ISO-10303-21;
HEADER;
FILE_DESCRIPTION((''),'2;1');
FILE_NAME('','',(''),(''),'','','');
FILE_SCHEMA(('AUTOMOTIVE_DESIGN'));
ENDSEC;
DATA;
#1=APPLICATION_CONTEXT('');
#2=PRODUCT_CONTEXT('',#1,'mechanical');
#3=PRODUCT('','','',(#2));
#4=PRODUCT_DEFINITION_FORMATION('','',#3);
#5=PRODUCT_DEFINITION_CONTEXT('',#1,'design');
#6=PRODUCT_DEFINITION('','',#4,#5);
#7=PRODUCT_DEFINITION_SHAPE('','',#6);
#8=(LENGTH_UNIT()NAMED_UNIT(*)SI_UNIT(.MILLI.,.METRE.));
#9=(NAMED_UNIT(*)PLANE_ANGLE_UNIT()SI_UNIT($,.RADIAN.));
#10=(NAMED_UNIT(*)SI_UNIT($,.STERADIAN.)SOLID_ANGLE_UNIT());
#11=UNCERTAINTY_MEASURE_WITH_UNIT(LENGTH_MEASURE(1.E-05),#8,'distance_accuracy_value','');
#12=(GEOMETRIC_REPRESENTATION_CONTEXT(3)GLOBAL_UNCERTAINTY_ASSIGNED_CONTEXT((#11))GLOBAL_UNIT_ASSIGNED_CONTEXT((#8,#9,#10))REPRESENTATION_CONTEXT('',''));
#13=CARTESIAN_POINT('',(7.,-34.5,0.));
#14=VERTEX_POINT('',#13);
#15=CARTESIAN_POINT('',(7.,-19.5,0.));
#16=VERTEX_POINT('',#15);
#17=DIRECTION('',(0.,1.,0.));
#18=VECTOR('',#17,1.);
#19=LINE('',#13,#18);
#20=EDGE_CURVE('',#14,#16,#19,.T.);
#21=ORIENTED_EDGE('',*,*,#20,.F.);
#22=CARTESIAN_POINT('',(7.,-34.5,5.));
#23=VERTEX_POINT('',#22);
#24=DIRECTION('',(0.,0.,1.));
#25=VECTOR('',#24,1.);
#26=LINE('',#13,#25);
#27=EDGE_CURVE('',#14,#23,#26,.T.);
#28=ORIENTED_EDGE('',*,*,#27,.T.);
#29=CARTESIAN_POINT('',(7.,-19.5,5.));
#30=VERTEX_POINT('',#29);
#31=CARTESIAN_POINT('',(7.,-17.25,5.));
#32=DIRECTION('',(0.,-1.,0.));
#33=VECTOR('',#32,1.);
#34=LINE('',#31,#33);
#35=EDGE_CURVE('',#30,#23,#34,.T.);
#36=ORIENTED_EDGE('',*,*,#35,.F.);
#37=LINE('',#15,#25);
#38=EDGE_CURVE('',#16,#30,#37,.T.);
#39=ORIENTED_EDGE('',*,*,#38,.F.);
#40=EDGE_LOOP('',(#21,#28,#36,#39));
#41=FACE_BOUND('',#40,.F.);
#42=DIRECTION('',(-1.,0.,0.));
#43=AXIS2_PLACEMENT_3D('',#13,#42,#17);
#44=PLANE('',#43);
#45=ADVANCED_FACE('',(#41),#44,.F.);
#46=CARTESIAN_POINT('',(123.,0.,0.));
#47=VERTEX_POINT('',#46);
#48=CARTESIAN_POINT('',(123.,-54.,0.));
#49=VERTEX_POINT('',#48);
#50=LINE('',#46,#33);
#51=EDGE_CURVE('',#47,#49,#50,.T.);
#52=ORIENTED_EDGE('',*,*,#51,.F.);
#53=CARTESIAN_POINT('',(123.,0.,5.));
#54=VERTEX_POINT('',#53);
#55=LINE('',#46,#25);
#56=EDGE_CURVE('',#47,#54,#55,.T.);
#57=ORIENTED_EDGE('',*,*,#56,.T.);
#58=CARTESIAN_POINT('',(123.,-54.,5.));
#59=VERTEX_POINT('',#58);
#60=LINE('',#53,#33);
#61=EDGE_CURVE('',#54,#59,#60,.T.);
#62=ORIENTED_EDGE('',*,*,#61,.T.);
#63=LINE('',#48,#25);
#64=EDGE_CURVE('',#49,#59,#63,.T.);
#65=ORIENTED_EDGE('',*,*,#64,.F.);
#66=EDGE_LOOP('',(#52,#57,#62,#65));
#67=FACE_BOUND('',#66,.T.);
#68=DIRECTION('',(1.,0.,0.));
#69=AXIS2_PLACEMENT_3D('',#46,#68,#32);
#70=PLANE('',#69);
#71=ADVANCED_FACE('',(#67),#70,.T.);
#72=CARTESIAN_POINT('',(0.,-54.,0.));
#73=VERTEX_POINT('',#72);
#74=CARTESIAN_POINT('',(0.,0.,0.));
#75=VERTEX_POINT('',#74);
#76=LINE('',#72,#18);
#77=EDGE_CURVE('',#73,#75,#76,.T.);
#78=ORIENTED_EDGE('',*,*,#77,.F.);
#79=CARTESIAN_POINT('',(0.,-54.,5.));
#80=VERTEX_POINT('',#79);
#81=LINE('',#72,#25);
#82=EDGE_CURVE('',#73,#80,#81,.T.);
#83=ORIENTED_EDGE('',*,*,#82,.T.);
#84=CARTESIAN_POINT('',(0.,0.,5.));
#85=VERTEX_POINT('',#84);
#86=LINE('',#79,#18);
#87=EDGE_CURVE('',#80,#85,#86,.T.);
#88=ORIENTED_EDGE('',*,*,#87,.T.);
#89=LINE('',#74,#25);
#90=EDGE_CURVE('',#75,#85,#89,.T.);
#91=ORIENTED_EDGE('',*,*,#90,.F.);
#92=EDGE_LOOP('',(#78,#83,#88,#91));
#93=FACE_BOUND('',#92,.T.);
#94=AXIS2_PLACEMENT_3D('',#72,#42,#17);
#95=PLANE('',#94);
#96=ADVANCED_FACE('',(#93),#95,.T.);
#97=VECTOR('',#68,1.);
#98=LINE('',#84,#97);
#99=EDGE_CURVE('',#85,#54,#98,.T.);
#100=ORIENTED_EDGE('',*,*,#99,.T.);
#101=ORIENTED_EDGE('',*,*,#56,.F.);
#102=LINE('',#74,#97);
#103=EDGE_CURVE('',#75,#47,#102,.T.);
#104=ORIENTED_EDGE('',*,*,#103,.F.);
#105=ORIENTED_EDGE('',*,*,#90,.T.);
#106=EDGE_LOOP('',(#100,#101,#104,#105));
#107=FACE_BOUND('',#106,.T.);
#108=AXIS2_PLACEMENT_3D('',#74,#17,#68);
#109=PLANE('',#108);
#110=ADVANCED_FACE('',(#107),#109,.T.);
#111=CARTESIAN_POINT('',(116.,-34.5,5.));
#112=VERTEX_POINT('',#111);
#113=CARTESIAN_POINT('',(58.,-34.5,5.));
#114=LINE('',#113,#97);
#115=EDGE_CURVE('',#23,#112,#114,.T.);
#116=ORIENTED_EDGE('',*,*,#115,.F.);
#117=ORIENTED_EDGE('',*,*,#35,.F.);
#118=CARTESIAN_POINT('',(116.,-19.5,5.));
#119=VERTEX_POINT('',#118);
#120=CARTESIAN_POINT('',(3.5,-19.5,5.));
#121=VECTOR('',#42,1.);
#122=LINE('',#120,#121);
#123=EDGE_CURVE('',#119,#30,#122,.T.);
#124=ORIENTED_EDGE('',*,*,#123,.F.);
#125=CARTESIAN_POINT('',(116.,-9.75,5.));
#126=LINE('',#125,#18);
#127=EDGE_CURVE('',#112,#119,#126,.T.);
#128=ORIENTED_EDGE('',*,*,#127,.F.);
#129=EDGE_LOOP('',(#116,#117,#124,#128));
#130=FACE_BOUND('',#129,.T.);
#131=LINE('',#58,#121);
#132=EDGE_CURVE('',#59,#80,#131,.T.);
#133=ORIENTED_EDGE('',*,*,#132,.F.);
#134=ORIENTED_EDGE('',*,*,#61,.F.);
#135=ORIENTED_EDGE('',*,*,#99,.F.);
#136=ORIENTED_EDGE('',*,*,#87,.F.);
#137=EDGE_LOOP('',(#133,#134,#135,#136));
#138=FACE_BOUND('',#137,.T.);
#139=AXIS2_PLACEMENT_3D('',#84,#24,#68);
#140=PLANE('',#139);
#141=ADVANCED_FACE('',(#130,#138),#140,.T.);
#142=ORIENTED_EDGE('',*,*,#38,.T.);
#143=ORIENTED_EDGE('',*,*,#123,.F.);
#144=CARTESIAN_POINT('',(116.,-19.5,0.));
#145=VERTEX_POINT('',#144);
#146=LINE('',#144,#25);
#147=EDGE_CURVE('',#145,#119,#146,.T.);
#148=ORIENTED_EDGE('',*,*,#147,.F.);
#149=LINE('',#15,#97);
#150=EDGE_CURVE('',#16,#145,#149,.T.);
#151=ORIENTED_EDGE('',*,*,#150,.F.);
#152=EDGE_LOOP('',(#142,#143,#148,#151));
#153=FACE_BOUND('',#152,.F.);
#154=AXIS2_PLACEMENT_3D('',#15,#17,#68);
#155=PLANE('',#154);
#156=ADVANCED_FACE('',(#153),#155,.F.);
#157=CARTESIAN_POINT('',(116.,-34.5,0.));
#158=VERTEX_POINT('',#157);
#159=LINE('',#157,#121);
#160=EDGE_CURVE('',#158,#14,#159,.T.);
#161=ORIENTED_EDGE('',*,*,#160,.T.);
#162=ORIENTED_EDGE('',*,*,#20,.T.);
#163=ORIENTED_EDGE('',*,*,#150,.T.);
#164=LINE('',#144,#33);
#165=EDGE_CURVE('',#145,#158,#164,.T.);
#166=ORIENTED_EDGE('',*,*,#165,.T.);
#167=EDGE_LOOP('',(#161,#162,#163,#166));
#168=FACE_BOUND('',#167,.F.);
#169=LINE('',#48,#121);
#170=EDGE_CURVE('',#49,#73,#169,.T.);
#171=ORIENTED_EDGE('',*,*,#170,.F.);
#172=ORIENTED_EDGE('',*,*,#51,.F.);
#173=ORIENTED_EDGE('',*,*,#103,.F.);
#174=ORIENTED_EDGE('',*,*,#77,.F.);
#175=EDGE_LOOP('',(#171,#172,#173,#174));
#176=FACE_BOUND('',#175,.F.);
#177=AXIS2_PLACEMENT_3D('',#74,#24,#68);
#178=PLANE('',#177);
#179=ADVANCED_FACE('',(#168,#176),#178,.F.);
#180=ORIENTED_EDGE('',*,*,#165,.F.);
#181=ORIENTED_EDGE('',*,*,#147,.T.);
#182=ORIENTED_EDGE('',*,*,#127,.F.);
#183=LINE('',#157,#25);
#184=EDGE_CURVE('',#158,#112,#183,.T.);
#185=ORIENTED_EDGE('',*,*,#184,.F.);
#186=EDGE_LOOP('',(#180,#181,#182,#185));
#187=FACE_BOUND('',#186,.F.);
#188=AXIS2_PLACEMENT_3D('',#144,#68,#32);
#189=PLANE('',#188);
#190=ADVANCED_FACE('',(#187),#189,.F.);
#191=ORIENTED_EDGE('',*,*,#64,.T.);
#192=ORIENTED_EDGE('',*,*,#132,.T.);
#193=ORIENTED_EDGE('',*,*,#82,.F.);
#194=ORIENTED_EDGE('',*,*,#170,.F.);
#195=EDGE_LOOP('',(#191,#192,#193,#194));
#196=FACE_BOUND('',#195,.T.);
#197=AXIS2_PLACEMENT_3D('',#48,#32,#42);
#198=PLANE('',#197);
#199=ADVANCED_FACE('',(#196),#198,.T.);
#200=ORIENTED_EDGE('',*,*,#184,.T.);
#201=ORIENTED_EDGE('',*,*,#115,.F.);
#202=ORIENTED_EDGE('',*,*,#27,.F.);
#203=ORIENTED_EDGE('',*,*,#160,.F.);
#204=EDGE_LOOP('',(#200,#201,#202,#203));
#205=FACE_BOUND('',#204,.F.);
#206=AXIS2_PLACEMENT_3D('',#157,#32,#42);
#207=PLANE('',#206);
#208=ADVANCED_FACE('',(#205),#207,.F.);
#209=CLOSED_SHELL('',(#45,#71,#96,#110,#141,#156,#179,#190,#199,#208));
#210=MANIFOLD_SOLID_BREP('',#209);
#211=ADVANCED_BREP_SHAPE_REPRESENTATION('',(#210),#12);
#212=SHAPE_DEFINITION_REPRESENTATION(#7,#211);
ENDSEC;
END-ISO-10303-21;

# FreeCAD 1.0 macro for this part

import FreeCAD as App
import Part
import Sketcher

V = App.Vector
Q = App.Units.Quantity

doc = App.newDocument("Part")
body = doc.addObject("PartDesign::Body", "Body")

sketch1 = body.newObject("Sketcher::SketchObject", "Sketch")
sketch1.AttachmentSupport = (doc.getObject("XY_Plane"), [""])
sketch1.MapMode = "FlatFace"
sketch1.addGeometry([
    Part.LineSegment(V(123, 0, 0), V(0, 0, 0)),
    Part.LineSegment(V(0, 0, 0), V(0, -54, 0)),
    Part.LineSegment(V(0, -54, 0), V(123, -54, 0)),
    Part.LineSegment(V(123, -54, 0), V(123, 0, 0)),
], False)
sketch1.addConstraint([
    Sketcher.Constraint("Coincident", 0, 2, 1, 1),
    Sketcher.Constraint("Coincident", 1, 2, 2, 1),
    Sketcher.Constraint("Coincident", 2, 2, 3, 1),
    Sketcher.Constraint("Coincident", 3, 2, 0, 1),
    Sketcher.Constraint("Horizontal", 0),
    Sketcher.Constraint("Vertical", 1),
    Sketcher.Constraint("Horizontal", 2),
    Sketcher.Constraint("Vertical", 3),
    Sketcher.Constraint("Coincident", 0, 2, -1, 1),
    Sketcher.Constraint("DistanceX", 0, 2, 0, 1, Q("123 mm")),
    Sketcher.Constraint("DistanceY", 1, 2, 1, 1, Q("54 mm")),
])
pad1 = body.newObject("PartDesign::Pad", "Pad")
pad1.Profile = sketch1
pad1.Length = 5

sketch2 = body.newObject("Sketcher::SketchObject", "Sketch001")
sketch2.AttachmentSupport = (doc.getObject("XY_Plane"), [""])
sketch2.MapMode = "FlatFace"
sketch2.addGeometry([
    Part.LineSegment(V(116, -20, 0), V(7, -20, 0)),
    Part.LineSegment(V(7, -20, 0), V(7, -34, 0)),
    Part.LineSegment(V(7, -34, 0), V(116, -34, 0)),
    Part.LineSegment(V(116, -34, 0), V(116, -20, 0)),
], False)
sketch2.addConstraint([
    Sketcher.Constraint("Coincident", 0, 2, 1, 1),
    Sketcher.Constraint("Coincident", 1, 2, 2, 1),
    Sketcher.Constraint("Coincident", 2, 2, 3, 1),
    Sketcher.Constraint("Coincident", 3, 2, 0, 1),
    Sketcher.Constraint("Horizontal", 0),
    Sketcher.Constraint("Vertical", 1),
    Sketcher.Constraint("Horizontal", 2),
    Sketcher.Constraint("Vertical", 3),
    Sketcher.Constraint("DistanceX", 0, 2, 0, 1, Q("109 mm")),
    Sketcher.Constraint("DistanceY", 1, 2, 1, 1, Q("15 mm")),
    Sketcher.Constraint("DistanceX", -1, 1, 0, 2, Q("7 mm")),
    Sketcher.Constraint("DistanceY", 0, 2, -1, 1, Q("19.5 mm")),
])
pocket1 = body.newObject("PartDesign::Pocket", "Pocket")
pocket1.Profile = sketch2
pocket1.Length = 100
pocket1.Reversed = True

doc.recompute()
